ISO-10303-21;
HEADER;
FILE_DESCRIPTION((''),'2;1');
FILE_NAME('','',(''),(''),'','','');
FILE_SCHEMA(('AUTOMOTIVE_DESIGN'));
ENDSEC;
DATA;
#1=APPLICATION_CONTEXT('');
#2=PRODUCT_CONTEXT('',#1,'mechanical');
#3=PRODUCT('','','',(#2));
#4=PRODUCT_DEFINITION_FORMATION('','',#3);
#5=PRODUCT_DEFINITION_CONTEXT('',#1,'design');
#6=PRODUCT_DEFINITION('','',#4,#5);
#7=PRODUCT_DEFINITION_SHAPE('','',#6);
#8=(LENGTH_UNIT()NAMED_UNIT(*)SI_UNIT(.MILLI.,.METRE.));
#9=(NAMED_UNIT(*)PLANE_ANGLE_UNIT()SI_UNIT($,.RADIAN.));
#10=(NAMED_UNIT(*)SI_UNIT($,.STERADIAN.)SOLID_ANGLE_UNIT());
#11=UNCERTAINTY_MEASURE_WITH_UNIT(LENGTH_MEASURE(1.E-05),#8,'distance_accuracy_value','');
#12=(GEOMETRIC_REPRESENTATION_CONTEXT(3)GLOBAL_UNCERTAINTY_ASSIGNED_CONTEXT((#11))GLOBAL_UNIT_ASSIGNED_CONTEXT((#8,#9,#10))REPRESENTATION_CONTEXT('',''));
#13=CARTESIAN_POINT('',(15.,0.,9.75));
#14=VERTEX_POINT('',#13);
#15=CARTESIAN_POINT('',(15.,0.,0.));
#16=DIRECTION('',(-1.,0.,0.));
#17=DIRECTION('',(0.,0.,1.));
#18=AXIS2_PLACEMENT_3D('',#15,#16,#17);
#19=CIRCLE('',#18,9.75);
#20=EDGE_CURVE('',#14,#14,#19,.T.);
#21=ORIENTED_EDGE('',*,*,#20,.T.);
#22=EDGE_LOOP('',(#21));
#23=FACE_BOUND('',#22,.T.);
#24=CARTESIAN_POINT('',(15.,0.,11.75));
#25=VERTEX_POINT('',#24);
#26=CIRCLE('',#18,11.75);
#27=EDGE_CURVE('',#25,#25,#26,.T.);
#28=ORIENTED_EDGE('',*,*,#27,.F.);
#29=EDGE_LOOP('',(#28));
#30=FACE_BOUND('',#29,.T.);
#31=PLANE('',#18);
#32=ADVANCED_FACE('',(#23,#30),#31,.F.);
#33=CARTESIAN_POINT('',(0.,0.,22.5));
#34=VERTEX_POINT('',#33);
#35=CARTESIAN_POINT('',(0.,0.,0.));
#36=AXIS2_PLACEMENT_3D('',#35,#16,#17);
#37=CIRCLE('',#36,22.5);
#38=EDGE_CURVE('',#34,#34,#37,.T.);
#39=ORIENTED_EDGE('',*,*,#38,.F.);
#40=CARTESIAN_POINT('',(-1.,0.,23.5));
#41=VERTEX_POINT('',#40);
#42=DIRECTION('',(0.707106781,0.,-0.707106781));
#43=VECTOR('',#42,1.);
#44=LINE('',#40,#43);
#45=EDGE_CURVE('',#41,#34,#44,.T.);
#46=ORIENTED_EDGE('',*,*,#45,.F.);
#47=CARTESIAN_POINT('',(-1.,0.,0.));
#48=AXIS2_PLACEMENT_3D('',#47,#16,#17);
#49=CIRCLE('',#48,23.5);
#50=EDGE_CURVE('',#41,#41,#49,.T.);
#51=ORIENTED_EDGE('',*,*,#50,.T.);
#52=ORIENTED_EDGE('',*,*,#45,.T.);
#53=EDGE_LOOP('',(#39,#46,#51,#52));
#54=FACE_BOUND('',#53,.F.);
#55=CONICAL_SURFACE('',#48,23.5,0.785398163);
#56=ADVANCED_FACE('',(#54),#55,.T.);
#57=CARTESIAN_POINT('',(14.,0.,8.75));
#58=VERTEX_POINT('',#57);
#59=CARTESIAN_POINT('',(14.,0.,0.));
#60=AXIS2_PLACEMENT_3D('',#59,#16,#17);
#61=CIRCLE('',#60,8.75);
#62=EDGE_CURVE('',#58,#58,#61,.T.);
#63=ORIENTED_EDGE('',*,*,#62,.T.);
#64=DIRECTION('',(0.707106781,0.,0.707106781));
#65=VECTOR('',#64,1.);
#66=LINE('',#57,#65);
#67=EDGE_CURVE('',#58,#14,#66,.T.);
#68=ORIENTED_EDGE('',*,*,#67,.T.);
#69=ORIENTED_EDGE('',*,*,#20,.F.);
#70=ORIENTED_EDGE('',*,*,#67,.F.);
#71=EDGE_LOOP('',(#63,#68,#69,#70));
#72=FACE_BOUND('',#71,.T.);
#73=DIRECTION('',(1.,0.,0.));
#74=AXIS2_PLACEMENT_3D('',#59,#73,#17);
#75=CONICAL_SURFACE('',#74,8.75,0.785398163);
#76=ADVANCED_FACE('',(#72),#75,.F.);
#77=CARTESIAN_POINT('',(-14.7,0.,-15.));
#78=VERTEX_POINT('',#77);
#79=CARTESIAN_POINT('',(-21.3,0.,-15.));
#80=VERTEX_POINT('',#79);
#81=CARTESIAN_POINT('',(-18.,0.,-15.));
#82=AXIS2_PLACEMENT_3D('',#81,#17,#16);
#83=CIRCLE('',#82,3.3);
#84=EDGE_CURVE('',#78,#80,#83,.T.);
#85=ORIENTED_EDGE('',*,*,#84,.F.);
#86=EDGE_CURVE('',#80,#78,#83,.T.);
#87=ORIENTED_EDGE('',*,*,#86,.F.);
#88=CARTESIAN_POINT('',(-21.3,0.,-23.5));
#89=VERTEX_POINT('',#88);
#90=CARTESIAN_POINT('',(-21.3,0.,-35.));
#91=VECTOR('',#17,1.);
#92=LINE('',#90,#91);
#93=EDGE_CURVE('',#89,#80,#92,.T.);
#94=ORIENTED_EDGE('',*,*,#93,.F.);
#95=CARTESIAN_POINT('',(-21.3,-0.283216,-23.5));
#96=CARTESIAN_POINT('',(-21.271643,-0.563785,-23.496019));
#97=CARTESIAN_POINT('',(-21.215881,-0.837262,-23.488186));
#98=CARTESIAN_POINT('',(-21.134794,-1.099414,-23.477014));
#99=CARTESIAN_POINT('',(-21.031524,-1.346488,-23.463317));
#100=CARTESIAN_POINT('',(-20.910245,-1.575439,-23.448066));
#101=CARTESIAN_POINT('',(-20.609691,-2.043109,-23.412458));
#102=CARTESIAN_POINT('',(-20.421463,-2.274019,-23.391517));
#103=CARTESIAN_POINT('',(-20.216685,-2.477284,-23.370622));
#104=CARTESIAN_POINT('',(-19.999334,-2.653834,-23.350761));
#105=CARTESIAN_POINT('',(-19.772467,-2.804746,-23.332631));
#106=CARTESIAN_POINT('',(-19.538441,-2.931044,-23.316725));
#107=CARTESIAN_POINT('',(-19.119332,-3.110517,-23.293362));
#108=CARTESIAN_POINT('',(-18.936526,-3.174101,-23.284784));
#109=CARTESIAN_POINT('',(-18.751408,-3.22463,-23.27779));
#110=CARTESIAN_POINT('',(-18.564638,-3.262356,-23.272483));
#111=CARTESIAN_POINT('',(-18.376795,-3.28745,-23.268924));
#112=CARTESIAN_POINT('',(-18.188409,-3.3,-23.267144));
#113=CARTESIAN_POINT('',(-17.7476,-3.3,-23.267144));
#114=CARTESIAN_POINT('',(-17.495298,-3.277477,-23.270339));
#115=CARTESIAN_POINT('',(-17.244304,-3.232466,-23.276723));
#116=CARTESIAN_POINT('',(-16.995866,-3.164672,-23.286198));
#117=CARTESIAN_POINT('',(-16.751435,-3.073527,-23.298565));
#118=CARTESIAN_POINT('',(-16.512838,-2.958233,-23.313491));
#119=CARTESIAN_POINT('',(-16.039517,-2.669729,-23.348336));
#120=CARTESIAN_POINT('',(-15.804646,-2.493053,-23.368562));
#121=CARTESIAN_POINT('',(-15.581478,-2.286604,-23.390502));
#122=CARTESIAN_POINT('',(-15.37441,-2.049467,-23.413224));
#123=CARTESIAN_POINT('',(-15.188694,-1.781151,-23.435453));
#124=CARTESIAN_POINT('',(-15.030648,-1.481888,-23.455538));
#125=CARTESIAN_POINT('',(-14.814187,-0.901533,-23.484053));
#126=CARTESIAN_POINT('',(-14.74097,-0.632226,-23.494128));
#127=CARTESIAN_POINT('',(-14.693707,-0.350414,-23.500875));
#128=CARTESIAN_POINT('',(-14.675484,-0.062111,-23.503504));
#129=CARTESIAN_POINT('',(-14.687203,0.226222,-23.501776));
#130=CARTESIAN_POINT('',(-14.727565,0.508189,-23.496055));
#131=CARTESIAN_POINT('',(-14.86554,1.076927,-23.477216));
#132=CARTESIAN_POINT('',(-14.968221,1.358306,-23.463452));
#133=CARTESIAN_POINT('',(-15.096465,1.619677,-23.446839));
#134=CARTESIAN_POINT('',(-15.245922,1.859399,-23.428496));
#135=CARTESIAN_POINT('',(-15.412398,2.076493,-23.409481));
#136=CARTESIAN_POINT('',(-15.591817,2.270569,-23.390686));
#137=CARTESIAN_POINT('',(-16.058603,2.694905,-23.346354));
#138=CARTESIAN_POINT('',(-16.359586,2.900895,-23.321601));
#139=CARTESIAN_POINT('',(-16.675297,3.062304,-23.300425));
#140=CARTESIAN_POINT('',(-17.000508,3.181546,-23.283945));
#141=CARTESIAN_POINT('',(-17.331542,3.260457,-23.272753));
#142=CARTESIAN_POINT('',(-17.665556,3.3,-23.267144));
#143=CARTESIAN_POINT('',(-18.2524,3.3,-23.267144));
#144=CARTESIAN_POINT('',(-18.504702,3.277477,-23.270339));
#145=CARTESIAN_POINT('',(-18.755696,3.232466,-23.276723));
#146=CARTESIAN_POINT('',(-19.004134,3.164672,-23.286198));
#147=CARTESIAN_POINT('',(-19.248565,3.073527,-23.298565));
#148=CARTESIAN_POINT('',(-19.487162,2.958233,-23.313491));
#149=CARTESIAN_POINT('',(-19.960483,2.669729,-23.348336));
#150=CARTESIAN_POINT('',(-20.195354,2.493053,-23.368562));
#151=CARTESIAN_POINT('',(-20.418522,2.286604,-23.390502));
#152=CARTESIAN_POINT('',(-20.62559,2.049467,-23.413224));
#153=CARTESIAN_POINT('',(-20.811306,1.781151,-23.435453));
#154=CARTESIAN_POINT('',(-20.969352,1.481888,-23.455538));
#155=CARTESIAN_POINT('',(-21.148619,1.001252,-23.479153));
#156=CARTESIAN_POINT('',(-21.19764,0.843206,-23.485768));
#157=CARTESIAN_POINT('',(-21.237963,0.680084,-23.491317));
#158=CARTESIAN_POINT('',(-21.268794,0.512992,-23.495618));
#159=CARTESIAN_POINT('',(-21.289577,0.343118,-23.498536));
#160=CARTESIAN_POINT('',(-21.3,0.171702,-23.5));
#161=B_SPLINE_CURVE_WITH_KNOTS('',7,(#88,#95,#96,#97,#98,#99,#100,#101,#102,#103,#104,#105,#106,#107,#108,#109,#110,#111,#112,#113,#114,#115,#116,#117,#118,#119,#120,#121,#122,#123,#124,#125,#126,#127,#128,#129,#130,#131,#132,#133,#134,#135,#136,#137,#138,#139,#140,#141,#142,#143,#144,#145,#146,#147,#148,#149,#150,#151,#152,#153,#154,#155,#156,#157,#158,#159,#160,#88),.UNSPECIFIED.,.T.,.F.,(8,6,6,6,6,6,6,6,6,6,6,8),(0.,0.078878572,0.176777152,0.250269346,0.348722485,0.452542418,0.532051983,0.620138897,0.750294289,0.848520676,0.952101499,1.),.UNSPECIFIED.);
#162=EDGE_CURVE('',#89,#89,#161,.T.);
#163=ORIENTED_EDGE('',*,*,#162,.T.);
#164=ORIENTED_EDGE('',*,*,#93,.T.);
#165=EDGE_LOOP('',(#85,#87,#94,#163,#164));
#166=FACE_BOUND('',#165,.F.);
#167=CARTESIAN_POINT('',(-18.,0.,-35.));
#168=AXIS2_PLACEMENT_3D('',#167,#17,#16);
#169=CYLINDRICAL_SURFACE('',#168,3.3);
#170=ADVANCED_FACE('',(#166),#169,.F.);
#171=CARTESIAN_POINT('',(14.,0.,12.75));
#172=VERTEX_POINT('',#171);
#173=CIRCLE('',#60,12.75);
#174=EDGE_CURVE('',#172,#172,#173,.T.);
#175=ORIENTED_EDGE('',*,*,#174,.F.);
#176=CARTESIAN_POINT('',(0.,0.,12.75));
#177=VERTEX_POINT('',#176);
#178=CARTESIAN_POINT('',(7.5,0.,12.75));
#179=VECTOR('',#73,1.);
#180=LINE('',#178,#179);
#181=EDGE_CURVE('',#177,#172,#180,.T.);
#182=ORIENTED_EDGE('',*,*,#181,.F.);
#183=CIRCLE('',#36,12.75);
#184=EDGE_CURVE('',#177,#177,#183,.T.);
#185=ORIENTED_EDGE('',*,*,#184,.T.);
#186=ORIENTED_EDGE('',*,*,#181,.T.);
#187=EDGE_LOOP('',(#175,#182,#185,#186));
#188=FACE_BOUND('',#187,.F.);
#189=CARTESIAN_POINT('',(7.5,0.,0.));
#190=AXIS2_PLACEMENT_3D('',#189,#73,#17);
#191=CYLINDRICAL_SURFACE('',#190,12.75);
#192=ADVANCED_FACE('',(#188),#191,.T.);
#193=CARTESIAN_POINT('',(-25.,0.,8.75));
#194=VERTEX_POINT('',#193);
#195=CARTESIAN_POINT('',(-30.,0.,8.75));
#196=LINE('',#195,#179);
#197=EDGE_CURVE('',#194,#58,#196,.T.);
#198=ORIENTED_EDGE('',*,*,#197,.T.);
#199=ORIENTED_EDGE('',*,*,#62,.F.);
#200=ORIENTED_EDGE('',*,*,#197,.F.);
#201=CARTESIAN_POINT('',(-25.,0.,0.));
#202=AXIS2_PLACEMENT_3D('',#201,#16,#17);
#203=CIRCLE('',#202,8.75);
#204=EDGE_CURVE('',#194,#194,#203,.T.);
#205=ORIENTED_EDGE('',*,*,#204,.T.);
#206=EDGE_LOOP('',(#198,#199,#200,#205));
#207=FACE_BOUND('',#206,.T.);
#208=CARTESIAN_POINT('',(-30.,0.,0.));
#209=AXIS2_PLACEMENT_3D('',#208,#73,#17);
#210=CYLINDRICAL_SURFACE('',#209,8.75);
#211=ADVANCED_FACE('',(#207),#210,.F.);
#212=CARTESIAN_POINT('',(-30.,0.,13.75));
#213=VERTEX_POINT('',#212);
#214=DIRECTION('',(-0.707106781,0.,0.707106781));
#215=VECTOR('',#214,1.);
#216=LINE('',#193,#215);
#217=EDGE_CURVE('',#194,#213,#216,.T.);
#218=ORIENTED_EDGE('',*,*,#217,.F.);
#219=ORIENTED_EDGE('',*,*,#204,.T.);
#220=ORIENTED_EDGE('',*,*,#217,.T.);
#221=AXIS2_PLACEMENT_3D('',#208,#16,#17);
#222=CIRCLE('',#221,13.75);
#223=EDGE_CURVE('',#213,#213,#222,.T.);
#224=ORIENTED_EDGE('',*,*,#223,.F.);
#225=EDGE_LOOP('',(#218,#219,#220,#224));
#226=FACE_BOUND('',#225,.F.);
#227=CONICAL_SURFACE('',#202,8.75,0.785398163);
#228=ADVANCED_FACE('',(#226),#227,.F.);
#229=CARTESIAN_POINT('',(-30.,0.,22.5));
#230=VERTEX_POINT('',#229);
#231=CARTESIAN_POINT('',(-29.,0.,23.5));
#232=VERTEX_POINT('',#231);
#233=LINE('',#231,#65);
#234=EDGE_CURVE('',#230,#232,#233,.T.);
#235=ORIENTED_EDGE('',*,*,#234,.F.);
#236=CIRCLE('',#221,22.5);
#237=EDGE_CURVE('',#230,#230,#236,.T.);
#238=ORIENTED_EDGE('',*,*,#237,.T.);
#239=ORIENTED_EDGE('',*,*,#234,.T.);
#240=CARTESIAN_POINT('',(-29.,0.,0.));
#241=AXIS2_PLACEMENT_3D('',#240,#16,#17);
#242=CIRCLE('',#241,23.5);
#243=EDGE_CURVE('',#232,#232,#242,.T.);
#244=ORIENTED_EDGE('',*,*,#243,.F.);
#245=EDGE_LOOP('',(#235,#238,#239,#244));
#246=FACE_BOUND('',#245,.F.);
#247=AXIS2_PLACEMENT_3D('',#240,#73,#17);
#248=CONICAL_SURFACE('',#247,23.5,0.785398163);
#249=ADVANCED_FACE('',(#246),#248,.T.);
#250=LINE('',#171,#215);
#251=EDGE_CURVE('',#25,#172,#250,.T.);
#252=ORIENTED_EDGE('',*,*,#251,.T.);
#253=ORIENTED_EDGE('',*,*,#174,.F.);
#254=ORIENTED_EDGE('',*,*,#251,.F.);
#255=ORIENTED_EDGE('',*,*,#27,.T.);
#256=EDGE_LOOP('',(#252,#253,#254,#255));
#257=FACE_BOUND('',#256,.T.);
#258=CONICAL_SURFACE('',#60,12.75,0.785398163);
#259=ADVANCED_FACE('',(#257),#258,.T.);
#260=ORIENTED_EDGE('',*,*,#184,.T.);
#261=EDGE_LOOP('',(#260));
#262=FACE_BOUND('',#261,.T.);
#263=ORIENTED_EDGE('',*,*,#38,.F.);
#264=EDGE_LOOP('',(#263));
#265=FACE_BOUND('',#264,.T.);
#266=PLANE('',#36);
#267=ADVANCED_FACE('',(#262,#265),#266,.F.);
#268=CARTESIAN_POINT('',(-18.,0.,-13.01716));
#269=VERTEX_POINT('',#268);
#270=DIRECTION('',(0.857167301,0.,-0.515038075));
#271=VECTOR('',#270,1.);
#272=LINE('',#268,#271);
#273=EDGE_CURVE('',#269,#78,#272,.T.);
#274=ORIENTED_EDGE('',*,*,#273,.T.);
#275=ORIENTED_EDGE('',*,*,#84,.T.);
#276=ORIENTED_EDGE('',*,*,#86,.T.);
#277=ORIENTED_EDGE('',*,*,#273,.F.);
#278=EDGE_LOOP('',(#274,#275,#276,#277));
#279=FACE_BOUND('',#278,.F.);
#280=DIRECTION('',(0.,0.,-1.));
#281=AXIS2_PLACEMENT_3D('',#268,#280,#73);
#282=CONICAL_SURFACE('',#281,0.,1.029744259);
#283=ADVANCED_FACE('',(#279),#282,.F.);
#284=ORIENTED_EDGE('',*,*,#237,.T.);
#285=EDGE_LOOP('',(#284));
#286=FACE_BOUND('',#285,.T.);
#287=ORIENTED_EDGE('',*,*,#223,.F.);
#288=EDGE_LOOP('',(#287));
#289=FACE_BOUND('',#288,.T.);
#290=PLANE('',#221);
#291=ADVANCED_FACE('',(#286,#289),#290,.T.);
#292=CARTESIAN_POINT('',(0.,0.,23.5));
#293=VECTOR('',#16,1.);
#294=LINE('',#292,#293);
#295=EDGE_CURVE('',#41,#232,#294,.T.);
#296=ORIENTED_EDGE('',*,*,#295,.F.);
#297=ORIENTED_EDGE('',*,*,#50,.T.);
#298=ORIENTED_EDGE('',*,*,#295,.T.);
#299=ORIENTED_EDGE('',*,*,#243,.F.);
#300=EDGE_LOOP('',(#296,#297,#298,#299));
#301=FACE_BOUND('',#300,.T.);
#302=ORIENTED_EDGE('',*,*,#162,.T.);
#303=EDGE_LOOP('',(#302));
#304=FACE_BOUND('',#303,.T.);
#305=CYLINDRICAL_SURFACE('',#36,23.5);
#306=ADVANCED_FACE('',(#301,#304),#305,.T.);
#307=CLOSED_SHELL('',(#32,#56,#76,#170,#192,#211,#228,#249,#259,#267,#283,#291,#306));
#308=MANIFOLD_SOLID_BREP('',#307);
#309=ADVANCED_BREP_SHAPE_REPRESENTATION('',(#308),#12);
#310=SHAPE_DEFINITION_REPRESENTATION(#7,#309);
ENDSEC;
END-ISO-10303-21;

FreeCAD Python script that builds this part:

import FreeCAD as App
import Part
import Sketcher
Q = App.Units.Quantity


def edges_at(feature, points):
    """Names of the edges that pass closest to the given points."""
    edges = feature.Shape.Edges
    near = lambda p: min(range(len(edges)), key=lambda i: edges[i].distToShape(Part.Vertex(*p))[0])
    return sorted({f"Edge{near(p) + 1}" for p in points})


def add_polygon(sketch, points):
    """Adds a closed chain of lines whose ends are joined by coincident constraints."""
    first, n = sketch.GeometryCount, len(points)
    for a, b in zip(points, points[1:] + points[:1]):
        sketch.addGeometry(Part.LineSegment(App.Vector(*a, 0), App.Vector(*b, 0)), False)
    for i in range(n):
        sketch.addConstraint(Sketcher.Constraint("Coincident", first + i, 2, first + (i + 1) % n, 1))

doc = App.newDocument("Part")
body = doc.addObject("PartDesign::Body", "Body")

# Sketch on XZ plane
sketch1 = body.newObject("Sketcher::SketchObject", "Sketch")
sketch1.AttachmentSupport = (doc.getObject("XZ_Plane"), [""])
sketch1.MapMode = "FlatFace"
add_polygon(sketch1, [(-30, 8.8), (15, 8.8), (15, 12.8), (0, 12.8), (0, 23.5), (-30, 23.5)])  # lines 0-5
sketch1.addConstraint([
    Sketcher.Constraint("Horizontal", 0),
    Sketcher.Constraint("Vertical", 1),
    Sketcher.Constraint("Horizontal", 2),
    Sketcher.Constraint("Vertical", 3),
    Sketcher.Constraint("Horizontal", 4),
    Sketcher.Constraint("Vertical", 5),
    Sketcher.Constraint("PointOnObject", 2, 2, -2),
    Sketcher.Constraint("DistanceX", 0, 1, 0, 2, Q("45 mm")),
    Sketcher.Constraint("DistanceX", 2, 2, 2, 1, Q("15 mm")),
    Sketcher.Constraint("DistanceY", 1, 1, 1, 2, Q("4 mm")),
    Sketcher.Constraint("DistanceY", 3, 1, 3, 2, Q("10.75 mm")),
    Sketcher.Constraint("DistanceY", -1, 1, 3, 2, Q("23.5 mm")),
])
revolution = body.newObject("PartDesign::Revolution", "Revolution")
revolution.Profile = sketch1
revolution.ReferenceAxis = (sketch1, ["H_Axis"])
revolution.Angle = 360
doc.recompute()

chamfer = body.newObject("PartDesign::Chamfer", "Chamfer")
chamfer.Base = (revolution, edges_at(revolution, [(-30, 0, -8.75)]))
chamfer.Size = 5

# Sketch on XY plane
sketch2 = body.newObject("Sketcher::SketchObject", "Sketch001")
sketch2.AttachmentSupport = (doc.getObject("XY_Plane"), [""])
sketch2.MapMode = "FlatFace"
sketch2.AttachmentOffset = App.Placement(App.Vector(0, 0, -25), App.Rotation())
sketch2.addGeometry(Part.Circle(App.Vector(-18, 0, 0), App.Vector(0, 0, 1), 3.3), False)
sketch2.addConstraint([
    Sketcher.Constraint("PointOnObject", 0, 3, -1),
    Sketcher.Constraint("Diameter", 0, Q("6.6 mm")),
    Sketcher.Constraint("DistanceX", 0, 3, -1, 1, Q("18 mm")),
])
doc.recompute()
hole = body.newObject("PartDesign::Hole", "Hole")
hole.Profile = sketch2
hole.ThreadType = "None"
hole.Diameter = 6.6
hole.DepthType = "Dimension"
hole.Depth = 10
hole.DrillPoint = "Angled"
hole.DrillPointAngle = 118
hole.Reversed = True
doc.recompute()

chamfer2 = body.newObject("PartDesign::Chamfer", "Chamfer001")
chamfer2.Base = (hole, edges_at(hole, [
    (-30, 0, -23.5),
    (0, 0, -23.5),
    (15, 0, -12.75),
    (15, 0, -8.75),
]))
chamfer2.Size = 1

doc.recompute()
